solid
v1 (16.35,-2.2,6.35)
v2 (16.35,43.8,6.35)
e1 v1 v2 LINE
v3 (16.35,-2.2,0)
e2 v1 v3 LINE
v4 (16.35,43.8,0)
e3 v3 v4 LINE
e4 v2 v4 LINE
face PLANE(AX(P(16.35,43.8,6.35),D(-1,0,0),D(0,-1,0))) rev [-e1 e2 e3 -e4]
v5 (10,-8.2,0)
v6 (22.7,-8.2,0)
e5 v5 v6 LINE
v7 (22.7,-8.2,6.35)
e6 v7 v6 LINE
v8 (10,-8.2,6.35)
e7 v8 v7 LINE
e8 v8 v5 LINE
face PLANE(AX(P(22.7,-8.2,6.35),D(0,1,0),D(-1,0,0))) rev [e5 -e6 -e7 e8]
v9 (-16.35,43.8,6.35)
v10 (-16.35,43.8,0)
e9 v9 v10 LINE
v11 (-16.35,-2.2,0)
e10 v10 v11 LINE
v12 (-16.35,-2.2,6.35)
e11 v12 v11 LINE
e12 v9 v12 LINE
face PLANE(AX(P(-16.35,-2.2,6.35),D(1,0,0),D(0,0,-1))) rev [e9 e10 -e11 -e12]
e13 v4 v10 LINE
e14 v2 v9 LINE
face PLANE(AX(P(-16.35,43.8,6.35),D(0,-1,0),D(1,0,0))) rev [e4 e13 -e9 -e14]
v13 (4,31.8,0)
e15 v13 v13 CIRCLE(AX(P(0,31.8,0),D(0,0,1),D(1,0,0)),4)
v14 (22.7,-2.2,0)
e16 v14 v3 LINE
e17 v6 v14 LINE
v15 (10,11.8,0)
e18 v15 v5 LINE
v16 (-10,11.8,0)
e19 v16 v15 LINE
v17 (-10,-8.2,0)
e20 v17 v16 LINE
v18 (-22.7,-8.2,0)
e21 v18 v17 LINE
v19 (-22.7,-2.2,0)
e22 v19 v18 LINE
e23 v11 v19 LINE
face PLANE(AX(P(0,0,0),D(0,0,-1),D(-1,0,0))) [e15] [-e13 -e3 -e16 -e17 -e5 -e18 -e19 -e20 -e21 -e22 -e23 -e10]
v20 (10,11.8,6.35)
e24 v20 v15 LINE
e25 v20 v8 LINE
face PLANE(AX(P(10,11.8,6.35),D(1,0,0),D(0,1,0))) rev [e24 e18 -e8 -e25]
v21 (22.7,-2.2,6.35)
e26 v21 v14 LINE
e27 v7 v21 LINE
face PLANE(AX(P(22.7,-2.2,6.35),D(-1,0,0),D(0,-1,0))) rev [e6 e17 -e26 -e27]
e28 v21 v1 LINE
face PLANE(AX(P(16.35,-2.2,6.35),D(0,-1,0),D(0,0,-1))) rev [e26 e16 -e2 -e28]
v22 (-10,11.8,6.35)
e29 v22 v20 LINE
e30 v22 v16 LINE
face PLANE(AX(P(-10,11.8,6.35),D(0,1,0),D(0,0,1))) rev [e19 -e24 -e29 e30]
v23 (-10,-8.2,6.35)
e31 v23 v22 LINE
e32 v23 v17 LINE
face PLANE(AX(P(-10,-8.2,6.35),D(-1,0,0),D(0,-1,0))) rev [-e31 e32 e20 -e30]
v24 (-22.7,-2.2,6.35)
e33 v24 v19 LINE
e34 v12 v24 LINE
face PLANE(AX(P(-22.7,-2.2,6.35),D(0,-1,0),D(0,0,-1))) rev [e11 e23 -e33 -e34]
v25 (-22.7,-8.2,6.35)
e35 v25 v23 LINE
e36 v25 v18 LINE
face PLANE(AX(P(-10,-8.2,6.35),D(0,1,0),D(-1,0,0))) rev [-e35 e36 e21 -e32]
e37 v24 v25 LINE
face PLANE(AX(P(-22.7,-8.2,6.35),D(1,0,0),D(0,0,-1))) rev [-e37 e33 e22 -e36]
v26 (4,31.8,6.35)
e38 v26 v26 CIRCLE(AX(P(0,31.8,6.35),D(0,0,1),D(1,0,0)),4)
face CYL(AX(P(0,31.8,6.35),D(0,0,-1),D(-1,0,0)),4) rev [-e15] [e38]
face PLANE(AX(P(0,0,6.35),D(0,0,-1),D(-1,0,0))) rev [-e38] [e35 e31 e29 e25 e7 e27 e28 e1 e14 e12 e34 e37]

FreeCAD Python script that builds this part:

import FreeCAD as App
import Part
import Sketcher
Q = App.Units.Quantity


def add_polygon(sketch, points):
    """Adds a closed chain of lines whose ends are joined by coincident constraints."""
    first, n = sketch.GeometryCount, len(points)
    for a, b in zip(points, points[1:] + points[:1]):
        sketch.addGeometry(Part.LineSegment(App.Vector(*a, 0), App.Vector(*b, 0)), False)
    for i in range(n):
        sketch.addConstraint(Sketcher.Constraint("Coincident", first + i, 2, first + (i + 1) % n, 1))

doc = App.newDocument("Part")
body = doc.addObject("PartDesign::Body", "Body")

sketch1 = body.newObject("Sketcher::SketchObject", "Sketch")
sketch1.AttachmentSupport = (doc.getObject("XY_Plane"), [""])
sketch1.MapMode = "FlatFace"
add_polygon(sketch1, [(-10, -8.2), (-10, 11.8), (10, 11.8), (10, -8.2), (22.7, -8.2), (22.7, -2.2), (16.4, -2.2), (16.4, 43.8), (-16.4, 43.8), (-16.4, -2.2), (-22.7, -2.2), (-22.7, -8.2)])
sketch1.addGeometry(Part.Circle(App.Vector(0, 31.8, 0), App.Vector(0, 0, 1), 4), False)
sketch1.addConstraint(Sketcher.Constraint("Vertical", 0))
sketch1.addConstraint(Sketcher.Constraint("Horizontal", 1))
sketch1.addConstraint(Sketcher.Constraint("Vertical", 2))
sketch1.addConstraint(Sketcher.Constraint("Horizontal", 3))
sketch1.addConstraint(Sketcher.Constraint("Vertical", 4))
sketch1.addConstraint(Sketcher.Constraint("Horizontal", 5))
sketch1.addConstraint(Sketcher.Constraint("Vertical", 6))
sketch1.addConstraint(Sketcher.Constraint("Horizontal", 7))
sketch1.addConstraint(Sketcher.Constraint("Vertical", 8))
sketch1.addConstraint(Sketcher.Constraint("Horizontal", 9))
sketch1.addConstraint(Sketcher.Constraint("Vertical", 10))
sketch1.addConstraint(Sketcher.Constraint("Horizontal", 11))
sketch1.addConstraint(Sketcher.Constraint("Symmetric", 5, 2, 8, 2, -2))
sketch1.addConstraint(Sketcher.Constraint("Symmetric", 3, 2, 10, 2, -2))
sketch1.addConstraint(Sketcher.Constraint("PointOnObject", 12, 3, -2))
sketch1.addConstraint(Sketcher.Constraint("Equal", 3, 11))
sketch1.addConstraint(Sketcher.Constraint("Equal", 1, 0))
sketch1.addConstraint(Sketcher.Constraint("Diameter", 12, Q("8 mm")))
sketch1.addConstraint(Sketcher.Constraint("DistanceX", 1, 1, 1, 2, Q("20 mm")))
sketch1.addConstraint(Sketcher.Constraint("DistanceY", 4, 1, 4, 2, Q("6 mm")))
sketch1.addConstraint(Sketcher.Constraint("DistanceY", 6, 1, 6, 2, Q("46 mm")))
sketch1.addConstraint(Sketcher.Constraint("DistanceX", 3, 1, 3, 2, Q("12.7 mm")))
sketch1.addConstraint(Sketcher.Constraint("DistanceX", 7, 2, 7, 1, Q("32.7 mm")))
sketch1.addConstraint(Sketcher.Constraint("DistanceY", 0, 2, 12, 3, Q("20 mm")))
sketch1.addConstraint(Sketcher.Constraint("DistanceY", -1, 1, 12, 3, Q("31.8 mm")))
pad1 = body.newObject("PartDesign::Pad", "Pad")
pad1.Profile = sketch1
pad1.Length = 6.35

doc.recompute()
